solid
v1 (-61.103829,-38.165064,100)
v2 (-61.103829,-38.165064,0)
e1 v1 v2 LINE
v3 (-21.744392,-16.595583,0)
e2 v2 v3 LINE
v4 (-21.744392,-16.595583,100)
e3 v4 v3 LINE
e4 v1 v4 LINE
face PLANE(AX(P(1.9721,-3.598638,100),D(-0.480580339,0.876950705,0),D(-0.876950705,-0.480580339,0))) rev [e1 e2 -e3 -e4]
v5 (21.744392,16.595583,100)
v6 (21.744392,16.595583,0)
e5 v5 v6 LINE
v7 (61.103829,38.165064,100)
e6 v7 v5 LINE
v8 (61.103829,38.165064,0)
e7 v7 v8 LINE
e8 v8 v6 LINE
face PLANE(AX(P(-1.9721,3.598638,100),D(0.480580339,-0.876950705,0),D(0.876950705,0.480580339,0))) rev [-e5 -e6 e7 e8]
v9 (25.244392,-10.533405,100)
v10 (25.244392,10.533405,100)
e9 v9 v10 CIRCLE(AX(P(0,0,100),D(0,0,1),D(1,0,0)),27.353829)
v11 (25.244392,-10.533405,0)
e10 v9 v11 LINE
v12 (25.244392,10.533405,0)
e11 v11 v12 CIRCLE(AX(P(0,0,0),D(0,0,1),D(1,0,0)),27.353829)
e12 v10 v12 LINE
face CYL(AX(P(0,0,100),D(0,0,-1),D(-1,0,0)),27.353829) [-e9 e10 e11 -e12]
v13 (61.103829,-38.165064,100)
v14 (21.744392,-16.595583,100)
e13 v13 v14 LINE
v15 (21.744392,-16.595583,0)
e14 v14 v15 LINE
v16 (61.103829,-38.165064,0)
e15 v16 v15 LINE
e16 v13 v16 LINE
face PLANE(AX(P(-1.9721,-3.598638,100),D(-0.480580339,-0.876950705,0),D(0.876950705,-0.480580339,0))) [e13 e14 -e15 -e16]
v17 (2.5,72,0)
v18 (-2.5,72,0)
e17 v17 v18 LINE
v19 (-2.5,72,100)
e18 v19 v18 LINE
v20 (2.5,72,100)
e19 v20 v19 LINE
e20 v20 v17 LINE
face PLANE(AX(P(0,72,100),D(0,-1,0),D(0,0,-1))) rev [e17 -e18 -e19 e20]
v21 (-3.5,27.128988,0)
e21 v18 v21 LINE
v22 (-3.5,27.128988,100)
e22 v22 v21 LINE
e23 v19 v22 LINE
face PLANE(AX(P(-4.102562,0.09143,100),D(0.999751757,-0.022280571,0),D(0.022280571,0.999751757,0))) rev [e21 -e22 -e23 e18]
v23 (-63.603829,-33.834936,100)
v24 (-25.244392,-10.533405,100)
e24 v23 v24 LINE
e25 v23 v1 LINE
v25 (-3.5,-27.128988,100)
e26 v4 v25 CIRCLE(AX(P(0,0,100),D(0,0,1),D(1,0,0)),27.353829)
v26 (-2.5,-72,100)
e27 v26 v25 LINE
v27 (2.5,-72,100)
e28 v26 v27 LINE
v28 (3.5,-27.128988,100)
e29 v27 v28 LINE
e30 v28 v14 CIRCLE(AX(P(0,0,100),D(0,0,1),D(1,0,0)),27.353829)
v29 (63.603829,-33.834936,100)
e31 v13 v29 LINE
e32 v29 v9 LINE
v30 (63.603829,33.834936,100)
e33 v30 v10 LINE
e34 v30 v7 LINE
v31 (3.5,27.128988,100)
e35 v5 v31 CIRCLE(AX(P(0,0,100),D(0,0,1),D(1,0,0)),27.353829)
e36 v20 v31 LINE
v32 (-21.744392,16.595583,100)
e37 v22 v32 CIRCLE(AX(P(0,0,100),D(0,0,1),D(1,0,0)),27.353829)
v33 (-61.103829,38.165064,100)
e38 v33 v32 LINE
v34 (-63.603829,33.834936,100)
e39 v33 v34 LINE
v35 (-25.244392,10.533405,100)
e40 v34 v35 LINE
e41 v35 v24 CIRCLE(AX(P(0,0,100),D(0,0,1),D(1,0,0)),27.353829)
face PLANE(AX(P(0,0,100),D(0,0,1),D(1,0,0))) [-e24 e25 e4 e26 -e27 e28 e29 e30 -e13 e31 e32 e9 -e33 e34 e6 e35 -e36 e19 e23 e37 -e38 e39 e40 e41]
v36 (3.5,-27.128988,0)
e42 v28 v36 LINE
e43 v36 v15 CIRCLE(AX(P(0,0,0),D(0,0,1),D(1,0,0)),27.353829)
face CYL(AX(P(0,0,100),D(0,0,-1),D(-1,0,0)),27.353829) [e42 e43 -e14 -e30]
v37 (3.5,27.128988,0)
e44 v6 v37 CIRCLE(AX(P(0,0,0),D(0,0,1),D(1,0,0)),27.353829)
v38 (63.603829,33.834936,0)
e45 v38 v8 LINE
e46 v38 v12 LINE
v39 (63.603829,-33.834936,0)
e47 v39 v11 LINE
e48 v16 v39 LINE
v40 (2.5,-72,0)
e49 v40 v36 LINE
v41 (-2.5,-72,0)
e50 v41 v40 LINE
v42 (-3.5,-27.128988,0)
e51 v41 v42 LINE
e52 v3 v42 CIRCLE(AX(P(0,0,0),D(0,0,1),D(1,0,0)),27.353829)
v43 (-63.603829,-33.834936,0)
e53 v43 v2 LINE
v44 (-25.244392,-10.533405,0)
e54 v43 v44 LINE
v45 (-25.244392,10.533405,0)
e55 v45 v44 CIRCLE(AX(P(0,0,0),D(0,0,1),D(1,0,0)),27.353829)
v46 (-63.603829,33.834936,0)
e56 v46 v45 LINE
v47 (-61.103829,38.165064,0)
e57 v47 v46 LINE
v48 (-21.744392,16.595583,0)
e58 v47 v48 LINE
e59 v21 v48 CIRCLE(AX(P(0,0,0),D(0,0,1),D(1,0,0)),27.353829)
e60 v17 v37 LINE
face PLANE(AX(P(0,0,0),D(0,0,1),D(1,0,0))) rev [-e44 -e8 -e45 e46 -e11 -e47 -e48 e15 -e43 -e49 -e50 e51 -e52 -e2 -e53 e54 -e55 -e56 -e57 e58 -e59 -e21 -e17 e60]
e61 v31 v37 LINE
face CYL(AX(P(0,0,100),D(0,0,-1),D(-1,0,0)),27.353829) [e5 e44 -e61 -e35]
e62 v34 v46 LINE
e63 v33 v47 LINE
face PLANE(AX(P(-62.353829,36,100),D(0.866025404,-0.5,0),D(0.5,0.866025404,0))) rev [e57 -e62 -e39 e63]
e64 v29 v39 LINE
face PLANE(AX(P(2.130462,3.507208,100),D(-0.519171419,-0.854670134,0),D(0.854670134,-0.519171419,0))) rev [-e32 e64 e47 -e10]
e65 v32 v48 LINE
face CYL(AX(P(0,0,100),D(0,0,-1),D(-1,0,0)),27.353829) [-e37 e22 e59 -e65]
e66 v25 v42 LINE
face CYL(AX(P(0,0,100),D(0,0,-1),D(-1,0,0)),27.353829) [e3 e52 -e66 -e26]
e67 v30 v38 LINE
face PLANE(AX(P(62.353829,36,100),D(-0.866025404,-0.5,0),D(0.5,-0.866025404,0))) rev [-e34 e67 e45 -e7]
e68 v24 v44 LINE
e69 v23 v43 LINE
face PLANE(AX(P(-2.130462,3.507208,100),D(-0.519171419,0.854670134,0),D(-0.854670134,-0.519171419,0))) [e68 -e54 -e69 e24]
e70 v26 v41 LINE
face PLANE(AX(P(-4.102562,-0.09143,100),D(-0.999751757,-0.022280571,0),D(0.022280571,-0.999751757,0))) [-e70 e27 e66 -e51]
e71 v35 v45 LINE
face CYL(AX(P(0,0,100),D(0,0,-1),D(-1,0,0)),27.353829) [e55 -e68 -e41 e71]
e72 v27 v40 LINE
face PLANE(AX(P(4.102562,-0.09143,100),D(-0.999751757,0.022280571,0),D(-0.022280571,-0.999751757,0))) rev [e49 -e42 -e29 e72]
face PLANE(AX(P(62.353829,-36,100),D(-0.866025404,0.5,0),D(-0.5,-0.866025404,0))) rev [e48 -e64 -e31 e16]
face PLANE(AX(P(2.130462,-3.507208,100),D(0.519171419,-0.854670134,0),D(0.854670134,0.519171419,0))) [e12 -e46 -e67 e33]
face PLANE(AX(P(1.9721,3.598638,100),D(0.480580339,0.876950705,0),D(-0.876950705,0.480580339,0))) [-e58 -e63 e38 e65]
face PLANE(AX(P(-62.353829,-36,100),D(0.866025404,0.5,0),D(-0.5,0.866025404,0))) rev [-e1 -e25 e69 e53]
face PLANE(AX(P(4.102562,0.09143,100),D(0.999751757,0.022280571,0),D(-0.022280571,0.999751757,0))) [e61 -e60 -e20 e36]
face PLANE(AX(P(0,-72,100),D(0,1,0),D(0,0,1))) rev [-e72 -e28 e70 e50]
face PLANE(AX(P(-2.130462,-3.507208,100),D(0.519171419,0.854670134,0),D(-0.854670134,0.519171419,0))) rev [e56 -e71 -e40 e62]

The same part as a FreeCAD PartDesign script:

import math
import FreeCAD as App
import Part
import Sketcher
from FreeCAD import Vector
Q = App.Units.Quantity

doc = App.newDocument("Part")
params = doc.addObject("Spreadsheet::Sheet", "Params")
for row, (alias, value) in enumerate([
    ("sketch1_width", "5 mm"),
    ("sketch1_length", "5 mm"),
    ("pad1_length", "100 mm"),
], start=1):
    params.set(f"A{row}", alias)
    params.set(f"B{row}", "=" + value)
    params.setAlias(f"B{row}", alias)

body = doc.addObject("PartDesign::Body", "Body")

# Sketch on XY plane
sketch1 = doc.addObject("Sketcher::SketchObject", "Sketch")
body.addObject(sketch1)
sketch1.AttachmentSupport = (doc.XY_Plane, [""])
sketch1.MapMode = "FlatFace"
sketch1.addGeometry(Part.LineSegment(Vector(3.5, 27.128988, 0), Vector(2.5, 72, 0)), False)
sketch1.addGeometry(Part.LineSegment(Vector(2.5, 72, 0), Vector(-2.5, 72, 0)), False)
sketch1.addGeometry(Part.LineSegment(Vector(-2.5, 72, 0), Vector(-3.5, 27.128988, 0)), False)
sketch1.addGeometry(Part.ArcOfCircle(Part.Circle(Vector(0, 0, 0), Vector(0, 0, 1), 27.353829), math.radians(97.35131), math.radians(142.64869)), False)
sketch1.addGeometry(Part.LineSegment(Vector(-21.744392, 16.595583, 0), Vector(-61.103829, 38.165064, 0)), False)
sketch1.addGeometry(Part.LineSegment(Vector(-61.103829, 38.165064, 0), Vector(-63.603829, 33.834936, 0)), False)
sketch1.addGeometry(Part.LineSegment(Vector(-63.603829, 33.834936, 0), Vector(-25.244392, 10.533405, 0)), False)
sketch1.addGeometry(Part.ArcOfCircle(Part.Circle(Vector(0, 0, 0), Vector(0, 0, 1), 27.353829), math.radians(157.35131), math.radians(202.64869)), False)
sketch1.addGeometry(Part.LineSegment(Vector(-25.244392, -10.533405, 0), Vector(-63.603829, -33.834936, 0)), False)
sketch1.addGeometry(Part.LineSegment(Vector(-63.603829, -33.834936, 0), Vector(-61.103829, -38.165064, 0)), False)
sketch1.addGeometry(Part.LineSegment(Vector(-61.103829, -38.165064, 0), Vector(-21.744392, -16.595583, 0)), False)
sketch1.addGeometry(Part.ArcOfCircle(Part.Circle(Vector(0, 0, 0), Vector(0, 0, 1), 27.353829), math.radians(-142.64869), math.radians(-97.35131)), False)
sketch1.addGeometry(Part.LineSegment(Vector(-3.5, -27.128988, 0), Vector(-2.5, -72, 0)), False)
sketch1.addGeometry(Part.LineSegment(Vector(-2.5, -72, 0), Vector(2.5, -72, 0)), False)
sketch1.addGeometry(Part.LineSegment(Vector(2.5, -72, 0), Vector(3.5, -27.128988, 0)), False)
sketch1.addGeometry(Part.ArcOfCircle(Part.Circle(Vector(0, 0, 0), Vector(0, 0, 1), 27.353829), math.radians(-82.64869), math.radians(-37.35131)), False)
sketch1.addGeometry(Part.LineSegment(Vector(21.744392, -16.595583, 0), Vector(61.103829, -38.165064, 0)), False)
sketch1.addGeometry(Part.LineSegment(Vector(61.103829, -38.165064, 0), Vector(63.603829, -33.834936, 0)), False)
sketch1.addGeometry(Part.LineSegment(Vector(63.603829, -33.834936, 0), Vector(25.244392, -10.533405, 0)), False)
sketch1.addGeometry(Part.ArcOfCircle(Part.Circle(Vector(0, 0, 0), Vector(0, 0, 1), 27.353829), math.radians(-22.64869), math.radians(22.64869)), False)
sketch1.addGeometry(Part.LineSegment(Vector(25.244392, 10.533405, 0), Vector(63.603829, 33.834936, 0)), False)
sketch1.addGeometry(Part.LineSegment(Vector(63.603829, 33.834936, 0), Vector(61.103829, 38.165064, 0)), False)
sketch1.addGeometry(Part.LineSegment(Vector(61.103829, 38.165064, 0), Vector(21.744392, 16.595583, 0)), False)
sketch1.addGeometry(Part.ArcOfCircle(Part.Circle(Vector(0, 0, 0), Vector(0, 0, 1), 27.353829), math.radians(37.35131), math.radians(82.64869)), False)
sketch1.addConstraint(Sketcher.Constraint("Coincident", 0, 2, 1, 1))
sketch1.addConstraint(Sketcher.Constraint("Coincident", 1, 2, 2, 1))
sketch1.addConstraint(Sketcher.Constraint("Coincident", 2, 2, 3, 1))
sketch1.addConstraint(Sketcher.Constraint("Coincident", 3, 2, 4, 1))
sketch1.addConstraint(Sketcher.Constraint("Coincident", 4, 2, 5, 1))
sketch1.addConstraint(Sketcher.Constraint("Coincident", 5, 2, 6, 1))
sketch1.addConstraint(Sketcher.Constraint("Coincident", 6, 2, 7, 1))
sketch1.addConstraint(Sketcher.Constraint("Coincident", 7, 2, 8, 1))
sketch1.addConstraint(Sketcher.Constraint("Coincident", 8, 2, 9, 1))
sketch1.addConstraint(Sketcher.Constraint("Coincident", 9, 2, 10, 1))
sketch1.addConstraint(Sketcher.Constraint("Coincident", 10, 2, 11, 1))
sketch1.addConstraint(Sketcher.Constraint("Coincident", 11, 2, 12, 1))
sketch1.addConstraint(Sketcher.Constraint("Coincident", 12, 2, 13, 1))
sketch1.addConstraint(Sketcher.Constraint("Coincident", 13, 2, 14, 1))
sketch1.addConstraint(Sketcher.Constraint("Coincident", 14, 2, 15, 1))
sketch1.addConstraint(Sketcher.Constraint("Coincident", 15, 2, 16, 1))
sketch1.addConstraint(Sketcher.Constraint("Coincident", 16, 2, 17, 1))
sketch1.addConstraint(Sketcher.Constraint("Coincident", 17, 2, 18, 1))
sketch1.addConstraint(Sketcher.Constraint("Coincident", 18, 2, 19, 1))
sketch1.addConstraint(Sketcher.Constraint("Coincident", 19, 2, 20, 1))
sketch1.addConstraint(Sketcher.Constraint("Coincident", 20, 2, 21, 1))
sketch1.addConstraint(Sketcher.Constraint("Coincident", 21, 2, 22, 1))
sketch1.addConstraint(Sketcher.Constraint("Coincident", 22, 2, 23, 1))
sketch1.addConstraint(Sketcher.Constraint("Coincident", 23, 2, 0, 1))
sketch1.addConstraint(Sketcher.Constraint("Horizontal", 1))
sketch1.addConstraint(Sketcher.Constraint("Horizontal", 13))
sketch1.addConstraint(Sketcher.Constraint("Coincident", 3, 3, -1, 1))
sketch1.addConstraint(Sketcher.Constraint("Coincident", 7, 3, -1, 1))
sketch1.addConstraint(Sketcher.Constraint("Coincident", 11, 3, -1, 1))
sketch1.addConstraint(Sketcher.Constraint("Coincident", 15, 3, -1, 1))
sketch1.addConstraint(Sketcher.Constraint("Coincident", 19, 3, -1, 1))
sketch1.addConstraint(Sketcher.Constraint("Coincident", 23, 3, -1, 1))
sketch1.addConstraint(Sketcher.Constraint("Equal", 3, 7))
sketch1.addConstraint(Sketcher.Constraint("Equal", 7, 11))
sketch1.addConstraint(Sketcher.Constraint("Equal", 11, 15))
sketch1.addConstraint(Sketcher.Constraint("Equal", 15, 19))
sketch1.addConstraint(Sketcher.Constraint("Equal", 19, 23))
sketch1.addConstraint(Sketcher.Constraint("Symmetric", 0, 2, 12, 2, -1, 1))
sketch1.addConstraint(Sketcher.Constraint("Symmetric", 4, 2, 16, 2, -1, 1))
sketch1.addConstraint(Sketcher.Constraint("Symmetric", 5, 2, 17, 2, -1, 1))
sketch1.addConstraint(Sketcher.Constraint("Symmetric", 8, 2, 20, 2, -1, 1))
sketch1.addConstraint(Sketcher.Constraint("Symmetric", 9, 2, 21, 2, -1, 1))
sketch1.addConstraint(Sketcher.Constraint("Symmetric", 9, 2, 16, 2, -2))
sketch1.addConstraint(Sketcher.Constraint("Symmetric", 8, 2, 17, 2, -2))
sketch1.addConstraint(Sketcher.Constraint("Parallel", 0, 12))
sketch1.addConstraint(Sketcher.Constraint("Parallel", 2, 14))
sketch1.addConstraint(Sketcher.Constraint("Parallel", 4, 16))
sketch1.addConstraint(Sketcher.Constraint("Parallel", 6, 18))
sketch1.addConstraint(Sketcher.Constraint("Parallel", 8, 20))
sketch1.addConstraint(Sketcher.Constraint("Parallel", 10, 22))
sketch1.addConstraint(Sketcher.Constraint("Horizontal", 11, 2, 14, 2))
sketch1.addConstraint(Sketcher.Constraint("Horizontal", 10, 2, 15, 2))
sketch1.addConstraint(Sketcher.Constraint("Horizontal", 7, 2, 18, 2))
sketch1.addConstraint(Sketcher.Constraint("Horizontal", 2, 2, 23, 2))
sketch1.addConstraint(Sketcher.Constraint("Vertical", 1, 2, 12, 2))
sketch1.addConstraint(Sketcher.Constraint("Equal", 2, 4))
sketch1.addConstraint(Sketcher.Constraint("Equal", 4, 6))
sketch1.addConstraint(Sketcher.Constraint("DistanceX", 1, 2, 1, 1, Q("5 mm")))
sketch1.addConstraint(Sketcher.Constraint("Angle", 5, Q("-120 deg")))
sketch1.addConstraint(Sketcher.Constraint("Distance", 5, Q("5 mm")))
sketch1.addConstraint(Sketcher.Constraint("DistanceY", -1, 1, 0, 2, Q("72 mm")))
sketch1.addConstraint(Sketcher.Constraint("DistanceX", 11, 2, 12, 2, Q("1 mm")))
sketch1.addConstraint(Sketcher.Constraint("DistanceX", 6, 2, 3, 2, Q("3.5 mm")))
sketch1.addConstraint(Sketcher.Constraint("Radius", 3, Q("27.353829 mm")))
sketch1.addConstraint(Sketcher.Constraint("DistanceX", 4, 2, -1, 1, Q("61.103829 mm")))
sketch1.setExpression("Constraints[57]", "Params.sketch1_width")
sketch1.setExpression("Constraints[59]", "Params.sketch1_length")
pad1 = doc.addObject("PartDesign::Pad", "Pad")
body.addObject(pad1)
pad1.Profile = sketch1
pad1.setExpression("Length", "Params.pad1_length")

doc.recompute()
